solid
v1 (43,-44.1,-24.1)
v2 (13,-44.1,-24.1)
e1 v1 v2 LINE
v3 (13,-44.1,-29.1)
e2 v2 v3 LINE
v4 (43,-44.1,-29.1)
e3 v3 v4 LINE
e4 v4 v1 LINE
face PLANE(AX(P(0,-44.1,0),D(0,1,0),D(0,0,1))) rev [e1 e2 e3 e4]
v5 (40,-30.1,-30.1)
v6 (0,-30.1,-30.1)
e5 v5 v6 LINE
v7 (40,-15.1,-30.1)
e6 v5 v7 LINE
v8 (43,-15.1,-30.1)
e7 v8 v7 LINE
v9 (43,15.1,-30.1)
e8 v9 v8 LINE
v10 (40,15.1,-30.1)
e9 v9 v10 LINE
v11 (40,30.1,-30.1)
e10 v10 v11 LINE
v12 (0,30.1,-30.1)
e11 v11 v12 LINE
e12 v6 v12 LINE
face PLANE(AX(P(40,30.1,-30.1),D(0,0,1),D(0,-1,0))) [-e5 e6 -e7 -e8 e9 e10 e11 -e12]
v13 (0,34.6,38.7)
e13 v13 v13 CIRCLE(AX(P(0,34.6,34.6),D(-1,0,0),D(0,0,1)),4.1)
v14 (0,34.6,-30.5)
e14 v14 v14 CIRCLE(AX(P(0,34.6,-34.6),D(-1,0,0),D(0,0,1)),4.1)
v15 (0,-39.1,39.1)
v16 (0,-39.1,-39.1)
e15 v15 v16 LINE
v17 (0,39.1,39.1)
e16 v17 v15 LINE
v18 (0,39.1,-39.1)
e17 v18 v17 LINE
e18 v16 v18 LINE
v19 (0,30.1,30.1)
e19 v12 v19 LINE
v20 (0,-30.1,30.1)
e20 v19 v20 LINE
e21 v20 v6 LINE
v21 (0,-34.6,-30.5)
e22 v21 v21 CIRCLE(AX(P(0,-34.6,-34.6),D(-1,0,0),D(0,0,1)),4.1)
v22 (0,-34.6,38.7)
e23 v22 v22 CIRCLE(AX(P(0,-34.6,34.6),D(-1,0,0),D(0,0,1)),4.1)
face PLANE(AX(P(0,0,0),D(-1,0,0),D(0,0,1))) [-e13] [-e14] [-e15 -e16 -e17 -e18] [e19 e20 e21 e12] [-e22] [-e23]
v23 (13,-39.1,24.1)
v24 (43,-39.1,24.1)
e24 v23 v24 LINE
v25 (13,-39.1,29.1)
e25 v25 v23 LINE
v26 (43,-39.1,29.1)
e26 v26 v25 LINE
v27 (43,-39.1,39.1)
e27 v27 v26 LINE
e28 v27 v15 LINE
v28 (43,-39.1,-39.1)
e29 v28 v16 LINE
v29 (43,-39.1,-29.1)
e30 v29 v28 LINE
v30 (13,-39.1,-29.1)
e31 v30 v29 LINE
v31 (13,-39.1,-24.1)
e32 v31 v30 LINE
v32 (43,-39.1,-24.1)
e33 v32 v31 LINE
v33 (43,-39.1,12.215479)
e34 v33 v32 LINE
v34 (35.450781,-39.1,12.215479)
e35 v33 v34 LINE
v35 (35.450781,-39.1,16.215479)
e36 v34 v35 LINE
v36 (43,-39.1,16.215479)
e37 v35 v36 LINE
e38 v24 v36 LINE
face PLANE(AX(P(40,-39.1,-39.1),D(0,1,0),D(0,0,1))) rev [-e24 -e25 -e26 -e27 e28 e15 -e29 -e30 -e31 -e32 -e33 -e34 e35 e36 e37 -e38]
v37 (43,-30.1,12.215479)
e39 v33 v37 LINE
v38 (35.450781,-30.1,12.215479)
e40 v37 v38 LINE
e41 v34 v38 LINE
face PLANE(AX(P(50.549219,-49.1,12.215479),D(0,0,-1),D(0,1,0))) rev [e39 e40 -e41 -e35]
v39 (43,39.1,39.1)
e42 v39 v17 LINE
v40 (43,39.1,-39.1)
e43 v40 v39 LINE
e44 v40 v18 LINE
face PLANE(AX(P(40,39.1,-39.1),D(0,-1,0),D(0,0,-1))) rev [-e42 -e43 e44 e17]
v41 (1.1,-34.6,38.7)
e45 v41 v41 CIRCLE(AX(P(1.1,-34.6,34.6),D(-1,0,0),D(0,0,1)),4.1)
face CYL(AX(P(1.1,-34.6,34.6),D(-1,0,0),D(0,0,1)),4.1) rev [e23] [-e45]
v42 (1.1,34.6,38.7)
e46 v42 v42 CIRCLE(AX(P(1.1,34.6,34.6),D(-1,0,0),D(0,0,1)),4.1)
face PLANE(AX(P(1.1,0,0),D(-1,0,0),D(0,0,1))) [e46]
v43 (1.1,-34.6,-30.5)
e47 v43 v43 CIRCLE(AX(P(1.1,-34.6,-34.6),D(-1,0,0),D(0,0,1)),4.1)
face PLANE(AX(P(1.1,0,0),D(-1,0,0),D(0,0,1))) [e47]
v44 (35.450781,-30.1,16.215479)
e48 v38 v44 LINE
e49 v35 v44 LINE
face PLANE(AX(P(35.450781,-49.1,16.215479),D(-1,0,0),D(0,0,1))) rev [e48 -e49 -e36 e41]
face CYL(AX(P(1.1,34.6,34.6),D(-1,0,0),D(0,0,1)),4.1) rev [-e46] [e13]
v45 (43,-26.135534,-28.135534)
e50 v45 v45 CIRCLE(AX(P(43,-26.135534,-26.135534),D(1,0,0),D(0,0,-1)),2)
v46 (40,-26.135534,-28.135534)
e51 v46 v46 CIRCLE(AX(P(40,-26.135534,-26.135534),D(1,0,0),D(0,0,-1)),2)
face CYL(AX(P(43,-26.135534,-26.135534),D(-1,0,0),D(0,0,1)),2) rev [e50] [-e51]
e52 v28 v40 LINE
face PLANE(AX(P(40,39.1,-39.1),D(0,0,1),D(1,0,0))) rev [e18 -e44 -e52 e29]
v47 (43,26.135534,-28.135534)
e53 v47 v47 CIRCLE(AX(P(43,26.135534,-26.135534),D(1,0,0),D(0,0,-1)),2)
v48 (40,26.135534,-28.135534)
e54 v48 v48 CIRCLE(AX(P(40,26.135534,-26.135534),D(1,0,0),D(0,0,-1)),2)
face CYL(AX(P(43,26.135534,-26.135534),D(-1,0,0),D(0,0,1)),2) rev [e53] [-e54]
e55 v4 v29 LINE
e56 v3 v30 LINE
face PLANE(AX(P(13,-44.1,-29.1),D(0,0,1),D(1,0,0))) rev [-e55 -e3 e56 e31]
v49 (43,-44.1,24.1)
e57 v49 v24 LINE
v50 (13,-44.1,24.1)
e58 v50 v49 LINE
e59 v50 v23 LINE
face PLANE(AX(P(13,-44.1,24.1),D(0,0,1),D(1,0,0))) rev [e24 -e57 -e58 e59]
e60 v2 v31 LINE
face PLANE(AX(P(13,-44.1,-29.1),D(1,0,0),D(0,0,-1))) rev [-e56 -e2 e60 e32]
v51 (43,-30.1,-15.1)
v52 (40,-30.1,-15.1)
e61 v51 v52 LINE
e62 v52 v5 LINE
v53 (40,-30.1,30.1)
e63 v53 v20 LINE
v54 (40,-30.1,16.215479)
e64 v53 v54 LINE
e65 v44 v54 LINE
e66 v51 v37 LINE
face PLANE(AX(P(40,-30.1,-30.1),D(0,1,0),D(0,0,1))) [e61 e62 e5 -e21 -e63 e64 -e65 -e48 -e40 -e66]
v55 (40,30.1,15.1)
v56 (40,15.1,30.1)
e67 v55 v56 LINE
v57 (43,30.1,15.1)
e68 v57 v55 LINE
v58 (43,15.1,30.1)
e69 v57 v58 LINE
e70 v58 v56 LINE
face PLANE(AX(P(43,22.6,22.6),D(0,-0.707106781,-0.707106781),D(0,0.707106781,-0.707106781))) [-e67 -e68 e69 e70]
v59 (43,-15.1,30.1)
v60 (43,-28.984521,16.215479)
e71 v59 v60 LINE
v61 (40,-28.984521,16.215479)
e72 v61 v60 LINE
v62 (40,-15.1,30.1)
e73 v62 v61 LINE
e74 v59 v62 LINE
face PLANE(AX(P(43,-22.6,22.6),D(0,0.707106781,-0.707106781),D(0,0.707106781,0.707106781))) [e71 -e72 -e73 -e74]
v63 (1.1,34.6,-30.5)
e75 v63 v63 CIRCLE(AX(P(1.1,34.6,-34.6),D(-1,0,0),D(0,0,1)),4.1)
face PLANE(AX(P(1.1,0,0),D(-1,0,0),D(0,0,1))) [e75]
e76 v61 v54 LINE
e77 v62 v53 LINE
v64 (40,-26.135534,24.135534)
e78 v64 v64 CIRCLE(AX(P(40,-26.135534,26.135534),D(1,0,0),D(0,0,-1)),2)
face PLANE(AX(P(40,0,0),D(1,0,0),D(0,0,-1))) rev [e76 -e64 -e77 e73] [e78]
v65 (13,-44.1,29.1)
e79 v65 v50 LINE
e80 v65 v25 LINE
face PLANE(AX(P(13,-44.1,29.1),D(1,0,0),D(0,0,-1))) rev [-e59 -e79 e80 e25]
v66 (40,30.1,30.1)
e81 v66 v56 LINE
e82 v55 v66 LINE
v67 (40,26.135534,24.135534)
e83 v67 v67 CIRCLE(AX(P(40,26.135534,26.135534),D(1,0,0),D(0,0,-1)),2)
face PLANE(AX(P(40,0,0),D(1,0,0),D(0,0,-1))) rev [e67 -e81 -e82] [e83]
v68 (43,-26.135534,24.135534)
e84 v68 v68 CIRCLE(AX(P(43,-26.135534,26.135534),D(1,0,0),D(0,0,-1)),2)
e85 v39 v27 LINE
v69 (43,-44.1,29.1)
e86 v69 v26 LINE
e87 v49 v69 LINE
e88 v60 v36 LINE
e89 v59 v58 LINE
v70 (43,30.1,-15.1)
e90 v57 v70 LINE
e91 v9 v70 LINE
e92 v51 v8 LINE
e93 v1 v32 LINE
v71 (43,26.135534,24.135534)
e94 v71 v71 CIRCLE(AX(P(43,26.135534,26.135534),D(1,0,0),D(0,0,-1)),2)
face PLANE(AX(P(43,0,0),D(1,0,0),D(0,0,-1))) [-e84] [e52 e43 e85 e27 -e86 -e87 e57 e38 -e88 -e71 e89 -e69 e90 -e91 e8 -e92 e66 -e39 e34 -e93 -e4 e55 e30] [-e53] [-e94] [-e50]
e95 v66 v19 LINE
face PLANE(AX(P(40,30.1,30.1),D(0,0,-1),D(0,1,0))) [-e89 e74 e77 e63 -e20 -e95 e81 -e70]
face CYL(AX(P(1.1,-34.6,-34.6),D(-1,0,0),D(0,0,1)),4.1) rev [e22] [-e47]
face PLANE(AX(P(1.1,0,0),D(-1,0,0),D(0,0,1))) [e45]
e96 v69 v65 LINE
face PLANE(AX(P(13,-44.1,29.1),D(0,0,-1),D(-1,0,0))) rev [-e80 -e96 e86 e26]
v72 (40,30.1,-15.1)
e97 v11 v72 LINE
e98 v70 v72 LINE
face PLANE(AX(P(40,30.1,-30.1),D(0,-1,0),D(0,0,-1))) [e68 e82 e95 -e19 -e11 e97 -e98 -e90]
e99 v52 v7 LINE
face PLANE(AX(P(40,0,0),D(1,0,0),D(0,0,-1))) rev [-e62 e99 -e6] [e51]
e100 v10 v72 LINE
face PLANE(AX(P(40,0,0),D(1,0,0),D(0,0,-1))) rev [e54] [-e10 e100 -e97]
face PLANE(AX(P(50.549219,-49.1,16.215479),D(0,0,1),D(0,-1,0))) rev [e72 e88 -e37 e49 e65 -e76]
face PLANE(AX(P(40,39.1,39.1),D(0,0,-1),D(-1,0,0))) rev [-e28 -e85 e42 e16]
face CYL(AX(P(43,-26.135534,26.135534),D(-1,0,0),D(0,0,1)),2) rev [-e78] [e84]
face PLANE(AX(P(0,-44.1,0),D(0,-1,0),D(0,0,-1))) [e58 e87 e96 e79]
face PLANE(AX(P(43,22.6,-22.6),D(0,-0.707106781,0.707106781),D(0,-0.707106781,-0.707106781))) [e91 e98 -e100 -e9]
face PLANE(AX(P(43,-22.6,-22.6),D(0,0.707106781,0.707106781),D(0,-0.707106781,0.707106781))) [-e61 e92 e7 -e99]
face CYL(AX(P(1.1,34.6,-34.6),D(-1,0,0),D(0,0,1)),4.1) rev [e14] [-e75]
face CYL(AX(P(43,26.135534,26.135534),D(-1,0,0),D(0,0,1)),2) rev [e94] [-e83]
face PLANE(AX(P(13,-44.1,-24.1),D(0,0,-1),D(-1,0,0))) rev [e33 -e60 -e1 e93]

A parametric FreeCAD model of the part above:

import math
import FreeCAD as App
import Part
import Sketcher
from FreeCAD import Vector


def add_polygon(sketch, points):
    """Adds a closed chain of lines whose ends are joined by coincident constraints."""
    first, n = sketch.GeometryCount, len(points)
    for a, b in zip(points, points[1:] + points[:1]):
        sketch.addGeometry(Part.LineSegment(App.Vector(*a, 0), App.Vector(*b, 0)), False)
    for i in range(n):
        sketch.addConstraint(Sketcher.Constraint("Coincident", first + i, 2, first + (i + 1) % n, 1))

doc = App.newDocument("Part")
params = doc.addObject("Spreadsheet::Sheet", "Params")
for row, (alias, value) in enumerate([
    ("sketch1_width", "78.2 mm"),
    ("sketch1_width2", "60.2 mm"),
    ("pad1_length", "40 mm"),
    ("sketch2_diameter", "4 mm"),
    ("sketch2_width", "78.2 mm"),
    ("sketch2_width2", "30.2 mm"),
    ("pad2_length", "3 mm"),
    ("sketch3_height", "4 mm"),
    ("pocket1_length", "38 mm"),
    ("sketch4_diameter", "8.2 mm"),
    ("pocket2_length", "2.2 mm"),
    ("sketch5_width", "30 mm"),
    ("sketch5_height", "5 mm"),
    ("pad3_length", "5 mm"),
], start=1):
    params.set(f"A{row}", alias)
    params.set(f"B{row}", "=" + value)
    params.setAlias(f"B{row}", alias)

body = doc.addObject("PartDesign::Body", "Body")

sketch1 = doc.addObject("Sketcher::SketchObject", "Sketch")
body.addObject(sketch1)
sketch1.AttachmentSupport = (doc.YZ_Plane, [""])
sketch1.MapMode = "FlatFace"
add_polygon(sketch1, [(39, 39), (-39, 39), (-39, -39), (39, -39)])
add_polygon(sketch1, [(-30, -30), (-30, 30), (30, 30), (30, -30)])
sketch1.addConstraint([
    Sketcher.Constraint("Horizontal", 0),
    Sketcher.Constraint("Vertical", 1),
    Sketcher.Constraint("Horizontal", 2),
    Sketcher.Constraint("Vertical", 3),
    Sketcher.Constraint("Vertical", 4),
    Sketcher.Constraint("Horizontal", 5),
    Sketcher.Constraint("Vertical", 6),
    Sketcher.Constraint("Horizontal", 7),
    Sketcher.Constraint("Symmetric", 0, 2, 2, 2, -1, 1),
    Sketcher.Constraint("Symmetric", 4, 2, 6, 2, -1, 1),
    Sketcher.Constraint("Equal", 2, 1),
    Sketcher.Constraint("Equal", 7, 4),
    Sketcher.Constraint("DistanceX", 0, 2, 0, 1, 78.2),
    Sketcher.Constraint("DistanceX", 5, 1, 5, 2, 60.2),
])
sketch1.setExpression("Constraints[20]", "Params.sketch1_width")
sketch1.setExpression("Constraints[21]", "Params.sketch1_width2")
pad1 = doc.addObject("PartDesign::Pad", "Pad")
body.addObject(pad1)
pad1.Profile = sketch1
pad1.setExpression("Length", "Params.pad1_length")

sketch2 = doc.addObject("Sketcher::SketchObject", "Sketch001")
body.addObject(sketch2)
sketch2.AttachmentSupport = (doc.YZ_Plane, [""])
sketch2.MapMode = "FlatFace"
sketch2.AttachmentOffset = App.Placement(Vector(0, 0, 40), App.Rotation())
add_polygon(sketch2, [(39.1, 39.1), (-39.1, 39.1), (-39.1, -39.1), (39.1, -39.1)])
add_polygon(sketch2, [(-15.1, 30.1), (15.1, 30.1), (30.1, 15.1), (30.1, -15.1), (15.1, -30.1), (-15.1, -30.1), (-30.1, -15.1), (-30.1, 15.1)])
sketch2.addGeometry(Part.Circle(Vector(-26.1, 26.1, 0), Vector(0, 0, 1), 2), False)
sketch2.addGeometry(Part.ArcOfCircle(Part.Circle(Vector(26.1, 26.1, 0), Vector(0, 0, 1), 2), math.radians(45), math.radians(225)), False)
sketch2.addGeometry(Part.ArcOfCircle(Part.Circle(Vector(26.1, 26.1, 0), Vector(0, 0, 1), 2), math.radians(-90), math.radians(45)), False)
sketch2.addGeometry(Part.ArcOfCircle(Part.Circle(Vector(26.1, 26.1, 0), Vector(0, 0, 1), 2), math.radians(-135), math.radians(-90)), False)
sketch2.addGeometry(Part.Circle(Vector(26.1, -26.1, 0), Vector(0, 0, 1), 2), False)
sketch2.addGeometry(Part.Circle(Vector(-26.1, -26.1, 0), Vector(0, 0, 1), 2), False)
sketch2.addConstraint([
    Sketcher.Constraint("Tangent", 13, 1, 14, 2),
    Sketcher.Constraint("Tangent", 14, 1, 15, 2),
    Sketcher.Constraint("Tangent", 15, 1, 13, 2),
    Sketcher.Constraint("Horizontal", 0),
    Sketcher.Constraint("Vertical", 1),
    Sketcher.Constraint("Horizontal", 2),
    Sketcher.Constraint("Vertical", 3),
    Sketcher.Constraint("Horizontal", 4),
    Sketcher.Constraint("Vertical", 6),
    Sketcher.Constraint("Horizontal", 8),
    Sketcher.Constraint("Vertical", 10),
    Sketcher.Constraint("Equal", 12, 13),
    Sketcher.Constraint("Equal", 15, 16),
    Sketcher.Constraint("Equal", 16, 17),
    Sketcher.Constraint("Symmetric", 12, 3, 16, 3, -1, 1),
    Sketcher.Constraint("Symmetric", 13, 3, 17, 3, -1, 1),
    Sketcher.Constraint("Symmetric", 0, 2, 2, 2, -1, 1),
    Sketcher.Constraint("Symmetric", 4, 2, 8, 2, -1, 1),
    Sketcher.Constraint("Symmetric", 5, 2, 9, 2, -1, 1),
    Sketcher.Constraint("Symmetric", 12, 3, 13, 3, -2),
    Sketcher.Constraint("Perpendicular", 5, 7),
    Sketcher.Constraint("Perpendicular", 9, 11),
    Sketcher.Constraint("Horizontal", 6, 2, 9, 2),
    Sketcher.Constraint("Horizontal", 5, 2, 10, 2),
    Sketcher.Constraint("Vertical", 4, 2, 7, 2),
    Sketcher.Constraint("Vertical", 16, 3, 14, 1),
    Sketcher.Constraint("Equal", 2, 1),
    Sketcher.Constraint("Equal", 8, 6),
    Sketcher.Constraint("Diameter", 12, 4.0),
    Sketcher.Constraint("DistanceX", 0, 2, 0, 1, 78.2),
    Sketcher.Constraint("DistanceX", 4, 1, 4, 2, 30.2),
    Sketcher.Constraint("DistanceY", 4, 2, 3, 2, 9.0),
    Sketcher.Constraint("DistanceX", -1, 1, 15, 1, 24.72132),
    Sketcher.Constraint("DistanceY", -1, 1, 15, 1, 24.72132),
    Sketcher.Constraint("DistanceX", 12, 3, -1, 1, 26.135534),
    Sketcher.Constraint("DistanceX", -1, 1, 13, 1, 27.549747),
])
sketch2.setExpression("Constraints[40]", "Params.sketch2_diameter")
sketch2.setExpression("Constraints[41]", "Params.sketch2_width")
sketch2.setExpression("Constraints[42]", "Params.sketch2_width2")
pad2 = doc.addObject("PartDesign::Pad", "Pad001")
body.addObject(pad2)
pad2.Profile = sketch2
pad2.setExpression("Length", "Params.pad2_length")

sketch3 = doc.addObject("Sketcher::SketchObject", "Sketch002")
body.addObject(sketch3)
sketch3.AttachmentSupport = (doc.XZ_Plane, [""])
sketch3.MapMode = "FlatFace"
sketch3.AttachmentOffset = App.Placement(Vector(0, 0, 30.1), App.Rotation())
add_polygon(sketch3, [(35.5, 12.2), (35.5, 16.2), (50.5, 16.2), (50.5, 12.2)])
sketch3.addConstraint([
    Sketcher.Constraint("Vertical", 0),
    Sketcher.Constraint("Horizontal", 1),
    Sketcher.Constraint("Vertical", 2),
    Sketcher.Constraint("Horizontal", 3),
    Sketcher.Constraint("DistanceY", 0, 1, 0, 2, 4.0),
    Sketcher.Constraint("DistanceX", 1, 1, 1, 2, 15.098438),
    Sketcher.Constraint("DistanceX", -1, 1, 0, 2, 35.450781),
    Sketcher.Constraint("DistanceY", -1, 1, 0, 2, 16.215479),
])
sketch3.setExpression("Constraints[8]", "Params.sketch3_height")
pocket1 = doc.addObject("PartDesign::Pocket", "Pocket")
body.addObject(pocket1)
pocket1.Profile = sketch3
pocket1.setExpression("Length", "Params.pocket1_length")
pocket1.Midplane = True

sketch4 = doc.addObject("Sketcher::SketchObject", "Sketch003")
body.addObject(sketch4)
sketch4.AttachmentSupport = (doc.YZ_Plane, [""])
sketch4.MapMode = "FlatFace"
sketch4.addGeometry([
    Part.Circle(Vector(34.6, -34.6, 0), Vector(0, 0, 1), 4.1),
    Part.Circle(Vector(-34.6, -34.6, 0), Vector(0, 0, 1), 4.1),
    Part.Circle(Vector(-34.6, 34.6, 0), Vector(0, 0, 1), 4.1),
    Part.ArcOfCircle(Part.Circle(Vector(34.6, 34.6, 0), Vector(0, 0, 1), 4.1), math.radians(-135), math.radians(45)),
    Part.ArcOfCircle(Part.Circle(Vector(34.6, 34.6, 0), Vector(0, 0, 1), 4.1), math.radians(90), math.radians(225)),
    Part.ArcOfCircle(Part.Circle(Vector(34.6, 34.6, 0), Vector(0, 0, 1), 4.1), math.radians(45), math.radians(90)),
], False)
sketch4.addConstraint([
    Sketcher.Constraint("Tangent", 3, 1, 4, 2),
    Sketcher.Constraint("Tangent", 4, 1, 5, 2),
    Sketcher.Constraint("Tangent", 5, 1, 3, 2),
    Sketcher.Constraint("Equal", 0, 1),
    Sketcher.Constraint("Equal", 1, 2),
    Sketcher.Constraint("Equal", 2, 3),
    Sketcher.Constraint("Symmetric", 0, 3, 2, 3, -1, 1),
    Sketcher.Constraint("Symmetric", 1, 3, 3, 3, -1, 1),
    Sketcher.Constraint("Symmetric", 0, 3, 1, 3, -2),
    Sketcher.Constraint("Vertical", 5, 3, 4, 1),
    Sketcher.Constraint("Diameter", 0, 8.2),
    Sketcher.Constraint("DistanceX", -1, 1, 0, 3, 34.6),
    Sketcher.Constraint("DistanceY", 0, 3, -1, 1, 34.6),
    Sketcher.Constraint("DistanceX", -1, 1, 3, 1, 31.700862),
    Sketcher.Constraint("DistanceX", -1, 1, 5, 1, 37.499138),
])
sketch4.setExpression("Constraints[10]", "Params.sketch4_diameter")
pocket2 = doc.addObject("PartDesign::Pocket", "Pocket001")
body.addObject(pocket2)
pocket2.Profile = sketch4
pocket2.setExpression("Length", "Params.pocket2_length")
pocket2.Midplane = True

sketch5 = doc.addObject("Sketcher::SketchObject", "Sketch004")
body.addObject(sketch5)
sketch5.AttachmentSupport = (doc.XZ_Plane, [""])
sketch5.MapMode = "FlatFace"
sketch5.AttachmentOffset = App.Placement(Vector(0, 0, 39.1), App.Rotation())
add_polygon(sketch5, [(13, -24), (13, -29), (43, -29), (43, -24)])
add_polygon(sketch5, [(13, 29), (13, 24), (43, 24), (43, 29)])
sketch5.addConstraint([
    Sketcher.Constraint("Vertical", 0),
    Sketcher.Constraint("Horizontal", 1),
    Sketcher.Constraint("Vertical", 2),
    Sketcher.Constraint("Horizontal", 3),
    Sketcher.Constraint("Vertical", 4),
    Sketcher.Constraint("Horizontal", 5),
    Sketcher.Constraint("Vertical", 6),
    Sketcher.Constraint("Horizontal", 7),
    Sketcher.Constraint("Symmetric", 3, 2, 4, 2, -1),
    Sketcher.Constraint("Symmetric", 1, 2, 6, 2, -1),
    Sketcher.Constraint("DistanceX", 1, 1, 1, 2, 30.0),
    Sketcher.Constraint("DistanceY", 0, 2, 0, 1, 5.0),
    Sketcher.Constraint("DistanceX", -1, 1, 0, 2, 13.0),
    Sketcher.Constraint("DistanceY", 0, 2, -1, 1, 29.1),
])
sketch5.setExpression("Constraints[18]", "Params.sketch5_width")
sketch5.setExpression("Constraints[19]", "Params.sketch5_height")
pad3 = doc.addObject("PartDesign::Pad", "Pad002")
body.addObject(pad3)
pad3.Profile = sketch5
pad3.setExpression("Length", "Params.pad3_length")

doc.recompute()
